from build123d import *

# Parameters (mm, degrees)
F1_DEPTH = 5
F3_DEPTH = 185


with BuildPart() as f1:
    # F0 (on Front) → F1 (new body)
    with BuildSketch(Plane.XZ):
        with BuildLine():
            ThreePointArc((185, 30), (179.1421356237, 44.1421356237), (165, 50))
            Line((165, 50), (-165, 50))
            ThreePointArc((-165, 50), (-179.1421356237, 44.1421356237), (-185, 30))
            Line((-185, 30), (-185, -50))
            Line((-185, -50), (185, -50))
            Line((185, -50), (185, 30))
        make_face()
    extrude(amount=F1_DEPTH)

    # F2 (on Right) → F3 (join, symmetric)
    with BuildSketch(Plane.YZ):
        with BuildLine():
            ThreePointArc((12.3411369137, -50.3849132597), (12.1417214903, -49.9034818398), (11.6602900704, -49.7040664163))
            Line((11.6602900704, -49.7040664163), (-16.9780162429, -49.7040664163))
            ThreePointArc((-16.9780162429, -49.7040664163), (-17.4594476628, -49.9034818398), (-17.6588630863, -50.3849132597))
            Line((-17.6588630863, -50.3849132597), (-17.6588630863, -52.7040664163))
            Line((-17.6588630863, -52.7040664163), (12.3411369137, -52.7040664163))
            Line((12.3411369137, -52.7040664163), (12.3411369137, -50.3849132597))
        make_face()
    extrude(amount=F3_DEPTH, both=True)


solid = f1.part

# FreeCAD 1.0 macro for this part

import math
import FreeCAD as App
import Part
import Sketcher

doc = App.newDocument("Part")
params = doc.addObject("Spreadsheet::Sheet", "Params")
for row, (alias, value) in enumerate([
    ("sketch1_radius", "20 mm"),
    ("sketch1_width", "330 mm"),
    ("sketch1_height", "80 mm"),
    ("pad1_length", "5 mm"),
    ("sketch2_width", "30 mm"),
    ("pad2_length", "370 mm"),
], start=1):
    params.set(f"A{row}", alias)
    params.set(f"B{row}", "=" + value)
    params.setAlias(f"B{row}", alias)

body = doc.addObject("PartDesign::Body", "Body")

# Sketch on XZ plane
sketch1 = body.newObject("Sketcher::SketchObject", "Sketch")
sketch1.AttachmentSupport = (doc.getObject("XZ_Plane"), [""])
sketch1.MapMode = "FlatFace"
sketch1.addGeometry(Part.ArcOfCircle(Part.Circle(App.Vector(165, 30, 0), App.Vector(0, 0, 1), 20), math.radians(0), math.radians(90)), False)
sketch1.addGeometry(Part.LineSegment(App.Vector(165, 50, 0), App.Vector(-165, 50, 0)), False)
sketch1.addGeometry(Part.ArcOfCircle(Part.Circle(App.Vector(-165, 30, 0), App.Vector(0, 0, 1), 20), math.radians(90), math.radians(180)), False)
sketch1.addGeometry(Part.LineSegment(App.Vector(-185, 30, 0), App.Vector(-185, -50, 0)), False)
sketch1.addGeometry(Part.LineSegment(App.Vector(-185, -50, 0), App.Vector(185, -50, 0)), False)
sketch1.addGeometry(Part.LineSegment(App.Vector(185, -50, 0), App.Vector(185, 30, 0)), False)
sketch1.addConstraint(Sketcher.Constraint("Tangent", 0, 2, 1, 1))
sketch1.addConstraint(Sketcher.Constraint("Tangent", 1, 2, 2, 1))
sketch1.addConstraint(Sketcher.Constraint("Tangent", 2, 2, 3, 1))
sketch1.addConstraint(Sketcher.Constraint("Coincident", 3, 2, 4, 1))
sketch1.addConstraint(Sketcher.Constraint("Coincident", 4, 2, 5, 1))
sketch1.addConstraint(Sketcher.Constraint("Tangent", 5, 2, 0, 1))
sketch1.addConstraint(Sketcher.Constraint("Horizontal", 1))
sketch1.addConstraint(Sketcher.Constraint("Vertical", 3))
sketch1.addConstraint(Sketcher.Constraint("Horizontal", 4))
sketch1.addConstraint(Sketcher.Constraint("Vertical", 5))
sketch1.addConstraint(Sketcher.Constraint("Equal", 0, 2))
sketch1.addConstraint(Sketcher.Constraint("Radius", 0, 20.0))
sketch1.addConstraint(Sketcher.Constraint("DistanceX", 1, 2, 1, 1, 330.0))
sketch1.addConstraint(Sketcher.Constraint("DistanceY", 3, 2, 3, 1, 80.0))
sketch1.addConstraint(Sketcher.Constraint("DistanceX", -1, 1, 0, 3, 165.0))
sketch1.addConstraint(Sketcher.Constraint("DistanceY", -1, 1, 0, 3, 30.0))
sketch1.setExpression("Constraints[11]", "Params.sketch1_radius")
sketch1.setExpression("Constraints[12]", "Params.sketch1_width")
sketch1.setExpression("Constraints[13]", "Params.sketch1_height")
pad1 = body.newObject("PartDesign::Pad", "Pad")
pad1.Profile = sketch1
pad1.setExpression("Length", "Params.pad1_length")

# Sketch on YZ plane
sketch2 = body.newObject("Sketcher::SketchObject", "Sketch001")
sketch2.AttachmentSupport = (doc.getObject("YZ_Plane"), [""])
sketch2.MapMode = "FlatFace"
sketch2.addGeometry(Part.ArcOfCircle(Part.Circle(App.Vector(11.66029, -50.384913, 0), App.Vector(0, 0, 1), 0.680847), math.radians(0), math.radians(90)), False)
sketch2.addGeometry(Part.LineSegment(App.Vector(11.66029, -49.704066, 0), App.Vector(-16.978016, -49.704066, 0)), False)
sketch2.addGeometry(Part.ArcOfCircle(Part.Circle(App.Vector(-16.978016, -50.384913, 0), App.Vector(0, 0, 1), 0.680847), math.radians(90), math.radians(180)), False)
sketch2.addGeometry(Part.LineSegment(App.Vector(-17.658863, -50.384913, 0), App.Vector(-17.658863, -52.704066, 0)), False)
sketch2.addGeometry(Part.LineSegment(App.Vector(-17.658863, -52.704066, 0), App.Vector(12.341137, -52.704066, 0)), False)
sketch2.addGeometry(Part.LineSegment(App.Vector(12.341137, -52.704066, 0), App.Vector(12.341137, -50.384913, 0)), False)
sketch2.addConstraint(Sketcher.Constraint("Tangent", 0, 2, 1, 1))
sketch2.addConstraint(Sketcher.Constraint("Tangent", 1, 2, 2, 1))
sketch2.addConstraint(Sketcher.Constraint("Tangent", 2, 2, 3, 1))
sketch2.addConstraint(Sketcher.Constraint("Coincident", 3, 2, 4, 1))
sketch2.addConstraint(Sketcher.Constraint("Coincident", 4, 2, 5, 1))
sketch2.addConstraint(Sketcher.Constraint("Tangent", 5, 2, 0, 1))
sketch2.addConstraint(Sketcher.Constraint("Horizontal", 1))
sketch2.addConstraint(Sketcher.Constraint("Vertical", 3))
sketch2.addConstraint(Sketcher.Constraint("Horizontal", 4))
sketch2.addConstraint(Sketcher.Constraint("Vertical", 5))
sketch2.addConstraint(Sketcher.Constraint("Equal", 0, 2))
sketch2.addConstraint(Sketcher.Constraint("DistanceX", 4, 1, 4, 2, 30.0))
sketch2.addConstraint(Sketcher.Constraint("DistanceY", 3, 2, 1, 2, 3.0))
sketch2.addConstraint(Sketcher.Constraint("Radius", 0, 0.680847))
sketch2.addConstraint(Sketcher.Constraint("DistanceX", -1, 1, 0, 3, 11.66029))
sketch2.addConstraint(Sketcher.Constraint("DistanceY", 0, 3, -1, 1, 50.384913))
sketch2.setExpression("Constraints[11]", "Params.sketch2_width")
pad2 = body.newObject("PartDesign::Pad", "Pad001")
pad2.Profile = sketch2
pad2.setExpression("Length", "Params.pad2_length")
pad2.Midplane = True

doc.recompute()
